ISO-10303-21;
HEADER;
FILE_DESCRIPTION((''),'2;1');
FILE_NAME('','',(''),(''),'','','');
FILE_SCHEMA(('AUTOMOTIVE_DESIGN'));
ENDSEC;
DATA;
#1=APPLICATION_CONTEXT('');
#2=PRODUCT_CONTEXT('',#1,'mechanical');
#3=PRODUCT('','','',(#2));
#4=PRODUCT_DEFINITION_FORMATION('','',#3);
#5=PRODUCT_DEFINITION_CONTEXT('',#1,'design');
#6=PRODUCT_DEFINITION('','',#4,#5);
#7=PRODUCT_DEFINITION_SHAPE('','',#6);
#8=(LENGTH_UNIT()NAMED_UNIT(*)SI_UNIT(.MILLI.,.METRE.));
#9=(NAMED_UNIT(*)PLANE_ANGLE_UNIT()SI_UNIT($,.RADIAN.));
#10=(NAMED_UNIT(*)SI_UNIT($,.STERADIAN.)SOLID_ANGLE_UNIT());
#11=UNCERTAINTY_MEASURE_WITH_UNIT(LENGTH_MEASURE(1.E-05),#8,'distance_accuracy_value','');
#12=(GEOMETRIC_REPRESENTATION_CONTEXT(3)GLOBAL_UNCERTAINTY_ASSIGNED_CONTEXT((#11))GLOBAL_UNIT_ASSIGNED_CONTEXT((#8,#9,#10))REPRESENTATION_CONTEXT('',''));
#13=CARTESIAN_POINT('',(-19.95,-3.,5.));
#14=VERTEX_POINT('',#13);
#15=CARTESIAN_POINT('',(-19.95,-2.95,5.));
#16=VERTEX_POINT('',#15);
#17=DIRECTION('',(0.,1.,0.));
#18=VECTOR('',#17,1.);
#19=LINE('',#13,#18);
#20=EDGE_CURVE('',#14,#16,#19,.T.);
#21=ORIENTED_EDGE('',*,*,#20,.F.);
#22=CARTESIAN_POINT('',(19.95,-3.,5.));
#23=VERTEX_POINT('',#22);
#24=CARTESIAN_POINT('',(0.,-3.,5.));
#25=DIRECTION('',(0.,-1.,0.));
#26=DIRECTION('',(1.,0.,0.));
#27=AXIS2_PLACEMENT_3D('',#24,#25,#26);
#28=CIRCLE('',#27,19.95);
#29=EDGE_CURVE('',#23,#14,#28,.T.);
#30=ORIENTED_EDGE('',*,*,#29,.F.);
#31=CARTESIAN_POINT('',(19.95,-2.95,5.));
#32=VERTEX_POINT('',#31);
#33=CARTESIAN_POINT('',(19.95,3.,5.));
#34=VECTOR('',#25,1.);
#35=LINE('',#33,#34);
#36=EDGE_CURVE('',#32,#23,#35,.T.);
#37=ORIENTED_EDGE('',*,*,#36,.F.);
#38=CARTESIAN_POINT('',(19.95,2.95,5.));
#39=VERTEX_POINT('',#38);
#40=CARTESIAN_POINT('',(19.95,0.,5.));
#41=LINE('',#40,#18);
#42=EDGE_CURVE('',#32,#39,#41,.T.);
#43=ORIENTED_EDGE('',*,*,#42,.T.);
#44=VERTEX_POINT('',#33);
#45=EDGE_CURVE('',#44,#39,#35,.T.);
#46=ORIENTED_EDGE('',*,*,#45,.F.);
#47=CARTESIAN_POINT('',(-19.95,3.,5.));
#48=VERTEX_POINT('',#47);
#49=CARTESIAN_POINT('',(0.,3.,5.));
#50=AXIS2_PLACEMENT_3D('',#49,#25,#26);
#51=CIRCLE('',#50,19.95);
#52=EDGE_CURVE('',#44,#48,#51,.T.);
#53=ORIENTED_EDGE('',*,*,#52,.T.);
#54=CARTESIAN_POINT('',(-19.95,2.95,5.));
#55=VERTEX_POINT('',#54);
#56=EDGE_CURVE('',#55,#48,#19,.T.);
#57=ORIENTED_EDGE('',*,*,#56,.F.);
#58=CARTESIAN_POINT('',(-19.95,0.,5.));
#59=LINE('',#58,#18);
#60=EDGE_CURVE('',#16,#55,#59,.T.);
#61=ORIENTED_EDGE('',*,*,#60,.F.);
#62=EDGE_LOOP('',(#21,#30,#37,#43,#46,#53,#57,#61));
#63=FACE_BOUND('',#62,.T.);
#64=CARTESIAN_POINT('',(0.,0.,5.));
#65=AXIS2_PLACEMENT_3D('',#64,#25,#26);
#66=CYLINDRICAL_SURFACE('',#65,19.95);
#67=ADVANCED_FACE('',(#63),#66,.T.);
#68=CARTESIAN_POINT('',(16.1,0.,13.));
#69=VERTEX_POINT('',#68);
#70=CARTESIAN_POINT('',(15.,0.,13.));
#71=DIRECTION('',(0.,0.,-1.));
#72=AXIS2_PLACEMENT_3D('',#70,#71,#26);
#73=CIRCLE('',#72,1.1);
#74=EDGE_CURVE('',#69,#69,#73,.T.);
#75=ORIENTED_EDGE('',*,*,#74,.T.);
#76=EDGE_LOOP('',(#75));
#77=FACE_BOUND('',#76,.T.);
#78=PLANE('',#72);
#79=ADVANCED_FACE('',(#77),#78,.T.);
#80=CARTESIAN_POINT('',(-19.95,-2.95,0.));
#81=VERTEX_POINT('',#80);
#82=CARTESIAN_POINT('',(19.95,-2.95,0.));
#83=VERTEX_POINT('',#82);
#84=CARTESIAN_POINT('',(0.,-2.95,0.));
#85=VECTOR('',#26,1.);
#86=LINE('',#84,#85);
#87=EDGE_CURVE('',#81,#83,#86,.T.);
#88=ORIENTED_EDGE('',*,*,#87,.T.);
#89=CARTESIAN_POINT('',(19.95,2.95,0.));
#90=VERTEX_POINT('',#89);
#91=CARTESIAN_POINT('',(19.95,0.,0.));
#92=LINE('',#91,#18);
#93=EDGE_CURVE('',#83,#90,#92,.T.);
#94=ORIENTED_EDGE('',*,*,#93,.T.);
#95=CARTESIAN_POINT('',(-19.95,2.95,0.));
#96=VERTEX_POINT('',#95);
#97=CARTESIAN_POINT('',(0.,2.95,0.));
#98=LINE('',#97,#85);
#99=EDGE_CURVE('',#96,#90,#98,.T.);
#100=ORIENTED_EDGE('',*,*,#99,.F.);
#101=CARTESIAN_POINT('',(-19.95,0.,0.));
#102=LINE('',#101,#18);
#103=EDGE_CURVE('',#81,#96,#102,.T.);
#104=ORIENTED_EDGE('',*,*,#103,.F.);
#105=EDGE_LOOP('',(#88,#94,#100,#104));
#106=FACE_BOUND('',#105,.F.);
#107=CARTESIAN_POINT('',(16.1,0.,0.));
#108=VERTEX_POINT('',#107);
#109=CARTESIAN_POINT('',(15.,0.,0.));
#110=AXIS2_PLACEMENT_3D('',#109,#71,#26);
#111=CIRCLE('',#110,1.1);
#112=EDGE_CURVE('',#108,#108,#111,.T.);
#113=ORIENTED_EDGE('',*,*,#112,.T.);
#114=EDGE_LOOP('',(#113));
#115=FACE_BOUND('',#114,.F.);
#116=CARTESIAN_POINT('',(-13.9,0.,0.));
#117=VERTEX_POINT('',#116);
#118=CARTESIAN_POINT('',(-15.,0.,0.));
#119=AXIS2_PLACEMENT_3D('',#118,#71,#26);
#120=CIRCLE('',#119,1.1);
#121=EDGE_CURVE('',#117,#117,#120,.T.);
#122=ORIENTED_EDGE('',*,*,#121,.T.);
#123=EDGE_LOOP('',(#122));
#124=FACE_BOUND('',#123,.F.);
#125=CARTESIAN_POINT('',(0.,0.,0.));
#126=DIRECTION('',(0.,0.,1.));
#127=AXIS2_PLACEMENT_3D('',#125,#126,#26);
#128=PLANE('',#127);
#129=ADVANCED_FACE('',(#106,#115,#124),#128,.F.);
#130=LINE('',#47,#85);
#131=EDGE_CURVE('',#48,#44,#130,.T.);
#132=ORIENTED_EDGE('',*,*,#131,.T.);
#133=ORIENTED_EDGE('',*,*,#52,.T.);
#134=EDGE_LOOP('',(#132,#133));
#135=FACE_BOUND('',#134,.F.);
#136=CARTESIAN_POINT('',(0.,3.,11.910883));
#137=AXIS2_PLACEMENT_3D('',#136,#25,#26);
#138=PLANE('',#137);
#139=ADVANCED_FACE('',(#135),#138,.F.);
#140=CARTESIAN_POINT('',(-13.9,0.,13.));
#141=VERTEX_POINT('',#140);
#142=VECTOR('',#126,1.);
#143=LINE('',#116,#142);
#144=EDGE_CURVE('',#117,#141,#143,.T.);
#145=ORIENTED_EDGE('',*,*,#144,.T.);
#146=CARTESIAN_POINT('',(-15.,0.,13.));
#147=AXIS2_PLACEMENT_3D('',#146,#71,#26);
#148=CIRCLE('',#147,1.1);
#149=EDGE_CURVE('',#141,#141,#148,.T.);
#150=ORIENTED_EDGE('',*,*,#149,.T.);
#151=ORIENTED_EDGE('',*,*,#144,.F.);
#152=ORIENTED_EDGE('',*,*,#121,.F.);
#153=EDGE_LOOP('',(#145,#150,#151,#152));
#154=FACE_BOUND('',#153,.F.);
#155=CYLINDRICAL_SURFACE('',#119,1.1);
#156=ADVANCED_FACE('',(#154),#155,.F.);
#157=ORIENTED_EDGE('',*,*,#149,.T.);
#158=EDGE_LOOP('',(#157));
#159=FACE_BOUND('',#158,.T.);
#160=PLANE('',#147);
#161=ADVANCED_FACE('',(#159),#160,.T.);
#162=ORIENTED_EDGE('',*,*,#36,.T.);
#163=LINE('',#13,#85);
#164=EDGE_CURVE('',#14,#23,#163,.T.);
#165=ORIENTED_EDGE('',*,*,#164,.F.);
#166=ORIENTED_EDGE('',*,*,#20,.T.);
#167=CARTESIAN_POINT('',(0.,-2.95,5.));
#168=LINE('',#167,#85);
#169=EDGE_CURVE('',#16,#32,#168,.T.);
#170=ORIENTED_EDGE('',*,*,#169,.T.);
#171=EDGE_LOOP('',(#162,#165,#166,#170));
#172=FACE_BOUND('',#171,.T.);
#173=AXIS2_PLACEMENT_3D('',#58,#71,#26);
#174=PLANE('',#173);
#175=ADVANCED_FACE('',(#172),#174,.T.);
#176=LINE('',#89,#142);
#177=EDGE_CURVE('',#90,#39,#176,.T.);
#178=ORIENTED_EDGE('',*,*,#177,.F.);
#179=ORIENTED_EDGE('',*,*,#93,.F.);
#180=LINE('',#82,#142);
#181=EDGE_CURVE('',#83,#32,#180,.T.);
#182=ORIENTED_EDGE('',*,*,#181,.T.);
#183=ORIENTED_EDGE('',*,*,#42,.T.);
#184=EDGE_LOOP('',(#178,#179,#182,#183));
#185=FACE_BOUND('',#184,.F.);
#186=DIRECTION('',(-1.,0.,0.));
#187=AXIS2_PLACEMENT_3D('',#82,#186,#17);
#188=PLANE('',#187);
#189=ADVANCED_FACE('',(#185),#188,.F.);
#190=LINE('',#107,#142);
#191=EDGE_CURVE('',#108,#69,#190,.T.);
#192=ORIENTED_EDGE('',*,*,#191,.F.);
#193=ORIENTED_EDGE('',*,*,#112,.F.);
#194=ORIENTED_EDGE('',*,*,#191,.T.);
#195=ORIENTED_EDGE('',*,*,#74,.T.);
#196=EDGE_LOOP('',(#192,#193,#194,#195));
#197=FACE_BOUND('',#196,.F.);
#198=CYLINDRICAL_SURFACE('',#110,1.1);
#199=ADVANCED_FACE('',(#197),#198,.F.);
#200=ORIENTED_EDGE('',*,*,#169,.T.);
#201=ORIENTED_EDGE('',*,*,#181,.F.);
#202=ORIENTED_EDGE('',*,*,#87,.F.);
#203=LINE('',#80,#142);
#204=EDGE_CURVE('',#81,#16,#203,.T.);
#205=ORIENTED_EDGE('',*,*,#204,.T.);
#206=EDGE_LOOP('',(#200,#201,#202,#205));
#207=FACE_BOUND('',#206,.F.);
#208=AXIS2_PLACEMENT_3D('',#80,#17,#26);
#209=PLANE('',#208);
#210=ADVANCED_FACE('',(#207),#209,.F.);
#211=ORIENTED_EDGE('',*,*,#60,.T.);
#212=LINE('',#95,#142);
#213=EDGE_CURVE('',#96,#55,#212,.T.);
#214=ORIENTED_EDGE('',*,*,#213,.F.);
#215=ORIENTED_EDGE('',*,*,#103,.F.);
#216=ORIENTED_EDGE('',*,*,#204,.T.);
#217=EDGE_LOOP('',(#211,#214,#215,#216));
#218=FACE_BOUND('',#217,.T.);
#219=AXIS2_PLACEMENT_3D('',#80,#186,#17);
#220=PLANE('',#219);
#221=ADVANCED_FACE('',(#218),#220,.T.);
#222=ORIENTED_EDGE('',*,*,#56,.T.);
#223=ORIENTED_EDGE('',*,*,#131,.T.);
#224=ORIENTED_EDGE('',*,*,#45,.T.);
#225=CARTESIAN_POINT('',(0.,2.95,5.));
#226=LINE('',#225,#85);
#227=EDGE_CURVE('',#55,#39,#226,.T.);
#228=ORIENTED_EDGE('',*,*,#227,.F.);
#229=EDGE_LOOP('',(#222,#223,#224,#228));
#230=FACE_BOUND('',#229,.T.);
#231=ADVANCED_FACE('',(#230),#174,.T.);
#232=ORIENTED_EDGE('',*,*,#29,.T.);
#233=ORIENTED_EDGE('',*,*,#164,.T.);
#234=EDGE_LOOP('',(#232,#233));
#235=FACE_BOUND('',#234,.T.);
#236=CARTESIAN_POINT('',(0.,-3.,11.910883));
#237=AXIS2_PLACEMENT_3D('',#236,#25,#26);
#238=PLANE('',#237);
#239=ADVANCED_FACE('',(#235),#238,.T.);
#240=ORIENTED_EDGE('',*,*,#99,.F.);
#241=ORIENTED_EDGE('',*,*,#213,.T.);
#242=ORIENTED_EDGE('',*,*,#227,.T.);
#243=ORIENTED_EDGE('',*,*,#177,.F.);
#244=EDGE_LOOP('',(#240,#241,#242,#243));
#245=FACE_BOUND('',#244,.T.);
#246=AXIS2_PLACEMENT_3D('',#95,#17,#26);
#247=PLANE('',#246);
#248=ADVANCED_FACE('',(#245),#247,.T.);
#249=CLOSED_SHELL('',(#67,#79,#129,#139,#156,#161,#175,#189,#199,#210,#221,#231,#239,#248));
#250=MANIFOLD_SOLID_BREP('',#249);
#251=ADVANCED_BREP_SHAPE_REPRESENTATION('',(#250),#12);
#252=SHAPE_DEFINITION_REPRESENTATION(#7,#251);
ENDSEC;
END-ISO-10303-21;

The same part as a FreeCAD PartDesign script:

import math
import FreeCAD as App
import Part
import Sketcher

V = App.Vector

doc = App.newDocument("Part")
params = doc.addObject("Spreadsheet::Sheet", "Params")
for row, (alias, value) in enumerate([
    ("sketch1_width", "39.9 mm"),
    ("sketch1_height", "5.9 mm"),
    ("pad1_length", "5 mm"),
    ("sketch2_radius", "19.95 mm"),
    ("pad2_length", "6 mm"),
    ("sketch3_diameter", "2.2 mm"),
    ("pocket1_length", "13 mm"),
], start=1):
    params.set(f"A{row}", alias)
    params.set(f"B{row}", "=" + value)
    params.setAlias(f"B{row}", alias)

body = doc.addObject("PartDesign::Body", "Body")

# Sketch on XY plane
sketch1 = doc.addObject("Sketcher::SketchObject", "Sketch")
body.addObject(sketch1)
sketch1.AttachmentSupport = (doc.XY_Plane, [""])
sketch1.MapMode = "FlatFace"
sketch1.addGeometry([
    Part.LineSegment(V(-19.95, 2.95, 0), V(-19.95, -2.95, 0)),
    Part.LineSegment(V(-19.95, -2.95, 0), V(19.95, -2.95, 0)),
    Part.LineSegment(V(19.95, -2.95, 0), V(19.95, 2.95, 0)),
    Part.LineSegment(V(19.95, 2.95, 0), V(-19.95, 2.95, 0)),
], False)
sketch1.addConstraint([
    Sketcher.Constraint("Coincident", 0, 2, 1, 1),
    Sketcher.Constraint("Coincident", 1, 2, 2, 1),
    Sketcher.Constraint("Coincident", 2, 2, 3, 1),
    Sketcher.Constraint("Coincident", 3, 2, 0, 1),
    Sketcher.Constraint("Vertical", 0),
    Sketcher.Constraint("Horizontal", 1),
    Sketcher.Constraint("Vertical", 2),
    Sketcher.Constraint("Horizontal", 3),
    Sketcher.Constraint("Symmetric", 0, 2, 2, 2, -1, 1),
    Sketcher.Constraint("DistanceX", 1, 1, 1, 2, 39.9),
    Sketcher.Constraint("DistanceY", 0, 2, 0, 1, 5.9),
])
sketch1.setExpression("Constraints[9]", "Params.sketch1_width")
sketch1.setExpression("Constraints[10]", "Params.sketch1_height")
pad1 = doc.addObject("PartDesign::Pad", "Pad")
body.addObject(pad1)
pad1.Profile = sketch1
pad1.setExpression("Length", "Params.pad1_length")

# Sketch on XZ plane
sketch2 = doc.addObject("Sketcher::SketchObject", "Sketch001")
body.addObject(sketch2)
sketch2.AttachmentSupport = (doc.XZ_Plane, [""])
sketch2.MapMode = "FlatFace"
sketch2.addGeometry([
    Part.LineSegment(V(-19.95, 5, 0), V(19.95, 5, 0)),
    Part.ArcOfCircle(Part.Circle(V(0, 5, 0), V(0, 0, 1), 19.95), math.radians(0), math.radians(180)),
], False)
sketch2.addConstraint([
    Sketcher.Constraint("Coincident", 0, 1, 1, 2),
    Sketcher.Constraint("Coincident", 1, 1, 0, 2),
    Sketcher.Constraint("Horizontal", 0),
    Sketcher.Constraint("PointOnObject", 1, 3, -2),
    Sketcher.Constraint("Horizontal", 1, 3, 0, 1),
    Sketcher.Constraint("Radius", 1, 19.95),
    Sketcher.Constraint("DistanceY", -1, 1, 1, 3, 5.0),
])
sketch2.setExpression("Constraints[5]", "Params.sketch2_radius")
pad2 = doc.addObject("PartDesign::Pad", "Pad001")
body.addObject(pad2)
pad2.Profile = sketch2
pad2.setExpression("Length", "Params.pad2_length")
pad2.Midplane = True

# Sketch on XY plane
sketch3 = doc.addObject("Sketcher::SketchObject", "Sketch002")
body.addObject(sketch3)
sketch3.AttachmentSupport = (doc.XY_Plane, [""])
sketch3.MapMode = "FlatFace"
sketch3.addGeometry([
    Part.Circle(V(15, 0, 0), V(0, 0, 1), 1.1),
    Part.Circle(V(-15, 0, 0), V(0, 0, 1), 1.1),
], False)
sketch3.addConstraint([
    Sketcher.Constraint("Equal", 0, 1),
    Sketcher.Constraint("Symmetric", 0, 3, 1, 3, -1, 1),
    Sketcher.Constraint("PointOnObject", 0, 3, -1),
    Sketcher.Constraint("Diameter", 0, 2.2),
    Sketcher.Constraint("DistanceX", -1, 1, 0, 3, 15.0),
])
sketch3.setExpression("Constraints[3]", "Params.sketch3_diameter")
pocket1 = doc.addObject("PartDesign::Pocket", "Pocket")
body.addObject(pocket1)
pocket1.Profile = sketch3
pocket1.setExpression("Length", "Params.pocket1_length")
pocket1.Reversed = True

doc.recompute()
